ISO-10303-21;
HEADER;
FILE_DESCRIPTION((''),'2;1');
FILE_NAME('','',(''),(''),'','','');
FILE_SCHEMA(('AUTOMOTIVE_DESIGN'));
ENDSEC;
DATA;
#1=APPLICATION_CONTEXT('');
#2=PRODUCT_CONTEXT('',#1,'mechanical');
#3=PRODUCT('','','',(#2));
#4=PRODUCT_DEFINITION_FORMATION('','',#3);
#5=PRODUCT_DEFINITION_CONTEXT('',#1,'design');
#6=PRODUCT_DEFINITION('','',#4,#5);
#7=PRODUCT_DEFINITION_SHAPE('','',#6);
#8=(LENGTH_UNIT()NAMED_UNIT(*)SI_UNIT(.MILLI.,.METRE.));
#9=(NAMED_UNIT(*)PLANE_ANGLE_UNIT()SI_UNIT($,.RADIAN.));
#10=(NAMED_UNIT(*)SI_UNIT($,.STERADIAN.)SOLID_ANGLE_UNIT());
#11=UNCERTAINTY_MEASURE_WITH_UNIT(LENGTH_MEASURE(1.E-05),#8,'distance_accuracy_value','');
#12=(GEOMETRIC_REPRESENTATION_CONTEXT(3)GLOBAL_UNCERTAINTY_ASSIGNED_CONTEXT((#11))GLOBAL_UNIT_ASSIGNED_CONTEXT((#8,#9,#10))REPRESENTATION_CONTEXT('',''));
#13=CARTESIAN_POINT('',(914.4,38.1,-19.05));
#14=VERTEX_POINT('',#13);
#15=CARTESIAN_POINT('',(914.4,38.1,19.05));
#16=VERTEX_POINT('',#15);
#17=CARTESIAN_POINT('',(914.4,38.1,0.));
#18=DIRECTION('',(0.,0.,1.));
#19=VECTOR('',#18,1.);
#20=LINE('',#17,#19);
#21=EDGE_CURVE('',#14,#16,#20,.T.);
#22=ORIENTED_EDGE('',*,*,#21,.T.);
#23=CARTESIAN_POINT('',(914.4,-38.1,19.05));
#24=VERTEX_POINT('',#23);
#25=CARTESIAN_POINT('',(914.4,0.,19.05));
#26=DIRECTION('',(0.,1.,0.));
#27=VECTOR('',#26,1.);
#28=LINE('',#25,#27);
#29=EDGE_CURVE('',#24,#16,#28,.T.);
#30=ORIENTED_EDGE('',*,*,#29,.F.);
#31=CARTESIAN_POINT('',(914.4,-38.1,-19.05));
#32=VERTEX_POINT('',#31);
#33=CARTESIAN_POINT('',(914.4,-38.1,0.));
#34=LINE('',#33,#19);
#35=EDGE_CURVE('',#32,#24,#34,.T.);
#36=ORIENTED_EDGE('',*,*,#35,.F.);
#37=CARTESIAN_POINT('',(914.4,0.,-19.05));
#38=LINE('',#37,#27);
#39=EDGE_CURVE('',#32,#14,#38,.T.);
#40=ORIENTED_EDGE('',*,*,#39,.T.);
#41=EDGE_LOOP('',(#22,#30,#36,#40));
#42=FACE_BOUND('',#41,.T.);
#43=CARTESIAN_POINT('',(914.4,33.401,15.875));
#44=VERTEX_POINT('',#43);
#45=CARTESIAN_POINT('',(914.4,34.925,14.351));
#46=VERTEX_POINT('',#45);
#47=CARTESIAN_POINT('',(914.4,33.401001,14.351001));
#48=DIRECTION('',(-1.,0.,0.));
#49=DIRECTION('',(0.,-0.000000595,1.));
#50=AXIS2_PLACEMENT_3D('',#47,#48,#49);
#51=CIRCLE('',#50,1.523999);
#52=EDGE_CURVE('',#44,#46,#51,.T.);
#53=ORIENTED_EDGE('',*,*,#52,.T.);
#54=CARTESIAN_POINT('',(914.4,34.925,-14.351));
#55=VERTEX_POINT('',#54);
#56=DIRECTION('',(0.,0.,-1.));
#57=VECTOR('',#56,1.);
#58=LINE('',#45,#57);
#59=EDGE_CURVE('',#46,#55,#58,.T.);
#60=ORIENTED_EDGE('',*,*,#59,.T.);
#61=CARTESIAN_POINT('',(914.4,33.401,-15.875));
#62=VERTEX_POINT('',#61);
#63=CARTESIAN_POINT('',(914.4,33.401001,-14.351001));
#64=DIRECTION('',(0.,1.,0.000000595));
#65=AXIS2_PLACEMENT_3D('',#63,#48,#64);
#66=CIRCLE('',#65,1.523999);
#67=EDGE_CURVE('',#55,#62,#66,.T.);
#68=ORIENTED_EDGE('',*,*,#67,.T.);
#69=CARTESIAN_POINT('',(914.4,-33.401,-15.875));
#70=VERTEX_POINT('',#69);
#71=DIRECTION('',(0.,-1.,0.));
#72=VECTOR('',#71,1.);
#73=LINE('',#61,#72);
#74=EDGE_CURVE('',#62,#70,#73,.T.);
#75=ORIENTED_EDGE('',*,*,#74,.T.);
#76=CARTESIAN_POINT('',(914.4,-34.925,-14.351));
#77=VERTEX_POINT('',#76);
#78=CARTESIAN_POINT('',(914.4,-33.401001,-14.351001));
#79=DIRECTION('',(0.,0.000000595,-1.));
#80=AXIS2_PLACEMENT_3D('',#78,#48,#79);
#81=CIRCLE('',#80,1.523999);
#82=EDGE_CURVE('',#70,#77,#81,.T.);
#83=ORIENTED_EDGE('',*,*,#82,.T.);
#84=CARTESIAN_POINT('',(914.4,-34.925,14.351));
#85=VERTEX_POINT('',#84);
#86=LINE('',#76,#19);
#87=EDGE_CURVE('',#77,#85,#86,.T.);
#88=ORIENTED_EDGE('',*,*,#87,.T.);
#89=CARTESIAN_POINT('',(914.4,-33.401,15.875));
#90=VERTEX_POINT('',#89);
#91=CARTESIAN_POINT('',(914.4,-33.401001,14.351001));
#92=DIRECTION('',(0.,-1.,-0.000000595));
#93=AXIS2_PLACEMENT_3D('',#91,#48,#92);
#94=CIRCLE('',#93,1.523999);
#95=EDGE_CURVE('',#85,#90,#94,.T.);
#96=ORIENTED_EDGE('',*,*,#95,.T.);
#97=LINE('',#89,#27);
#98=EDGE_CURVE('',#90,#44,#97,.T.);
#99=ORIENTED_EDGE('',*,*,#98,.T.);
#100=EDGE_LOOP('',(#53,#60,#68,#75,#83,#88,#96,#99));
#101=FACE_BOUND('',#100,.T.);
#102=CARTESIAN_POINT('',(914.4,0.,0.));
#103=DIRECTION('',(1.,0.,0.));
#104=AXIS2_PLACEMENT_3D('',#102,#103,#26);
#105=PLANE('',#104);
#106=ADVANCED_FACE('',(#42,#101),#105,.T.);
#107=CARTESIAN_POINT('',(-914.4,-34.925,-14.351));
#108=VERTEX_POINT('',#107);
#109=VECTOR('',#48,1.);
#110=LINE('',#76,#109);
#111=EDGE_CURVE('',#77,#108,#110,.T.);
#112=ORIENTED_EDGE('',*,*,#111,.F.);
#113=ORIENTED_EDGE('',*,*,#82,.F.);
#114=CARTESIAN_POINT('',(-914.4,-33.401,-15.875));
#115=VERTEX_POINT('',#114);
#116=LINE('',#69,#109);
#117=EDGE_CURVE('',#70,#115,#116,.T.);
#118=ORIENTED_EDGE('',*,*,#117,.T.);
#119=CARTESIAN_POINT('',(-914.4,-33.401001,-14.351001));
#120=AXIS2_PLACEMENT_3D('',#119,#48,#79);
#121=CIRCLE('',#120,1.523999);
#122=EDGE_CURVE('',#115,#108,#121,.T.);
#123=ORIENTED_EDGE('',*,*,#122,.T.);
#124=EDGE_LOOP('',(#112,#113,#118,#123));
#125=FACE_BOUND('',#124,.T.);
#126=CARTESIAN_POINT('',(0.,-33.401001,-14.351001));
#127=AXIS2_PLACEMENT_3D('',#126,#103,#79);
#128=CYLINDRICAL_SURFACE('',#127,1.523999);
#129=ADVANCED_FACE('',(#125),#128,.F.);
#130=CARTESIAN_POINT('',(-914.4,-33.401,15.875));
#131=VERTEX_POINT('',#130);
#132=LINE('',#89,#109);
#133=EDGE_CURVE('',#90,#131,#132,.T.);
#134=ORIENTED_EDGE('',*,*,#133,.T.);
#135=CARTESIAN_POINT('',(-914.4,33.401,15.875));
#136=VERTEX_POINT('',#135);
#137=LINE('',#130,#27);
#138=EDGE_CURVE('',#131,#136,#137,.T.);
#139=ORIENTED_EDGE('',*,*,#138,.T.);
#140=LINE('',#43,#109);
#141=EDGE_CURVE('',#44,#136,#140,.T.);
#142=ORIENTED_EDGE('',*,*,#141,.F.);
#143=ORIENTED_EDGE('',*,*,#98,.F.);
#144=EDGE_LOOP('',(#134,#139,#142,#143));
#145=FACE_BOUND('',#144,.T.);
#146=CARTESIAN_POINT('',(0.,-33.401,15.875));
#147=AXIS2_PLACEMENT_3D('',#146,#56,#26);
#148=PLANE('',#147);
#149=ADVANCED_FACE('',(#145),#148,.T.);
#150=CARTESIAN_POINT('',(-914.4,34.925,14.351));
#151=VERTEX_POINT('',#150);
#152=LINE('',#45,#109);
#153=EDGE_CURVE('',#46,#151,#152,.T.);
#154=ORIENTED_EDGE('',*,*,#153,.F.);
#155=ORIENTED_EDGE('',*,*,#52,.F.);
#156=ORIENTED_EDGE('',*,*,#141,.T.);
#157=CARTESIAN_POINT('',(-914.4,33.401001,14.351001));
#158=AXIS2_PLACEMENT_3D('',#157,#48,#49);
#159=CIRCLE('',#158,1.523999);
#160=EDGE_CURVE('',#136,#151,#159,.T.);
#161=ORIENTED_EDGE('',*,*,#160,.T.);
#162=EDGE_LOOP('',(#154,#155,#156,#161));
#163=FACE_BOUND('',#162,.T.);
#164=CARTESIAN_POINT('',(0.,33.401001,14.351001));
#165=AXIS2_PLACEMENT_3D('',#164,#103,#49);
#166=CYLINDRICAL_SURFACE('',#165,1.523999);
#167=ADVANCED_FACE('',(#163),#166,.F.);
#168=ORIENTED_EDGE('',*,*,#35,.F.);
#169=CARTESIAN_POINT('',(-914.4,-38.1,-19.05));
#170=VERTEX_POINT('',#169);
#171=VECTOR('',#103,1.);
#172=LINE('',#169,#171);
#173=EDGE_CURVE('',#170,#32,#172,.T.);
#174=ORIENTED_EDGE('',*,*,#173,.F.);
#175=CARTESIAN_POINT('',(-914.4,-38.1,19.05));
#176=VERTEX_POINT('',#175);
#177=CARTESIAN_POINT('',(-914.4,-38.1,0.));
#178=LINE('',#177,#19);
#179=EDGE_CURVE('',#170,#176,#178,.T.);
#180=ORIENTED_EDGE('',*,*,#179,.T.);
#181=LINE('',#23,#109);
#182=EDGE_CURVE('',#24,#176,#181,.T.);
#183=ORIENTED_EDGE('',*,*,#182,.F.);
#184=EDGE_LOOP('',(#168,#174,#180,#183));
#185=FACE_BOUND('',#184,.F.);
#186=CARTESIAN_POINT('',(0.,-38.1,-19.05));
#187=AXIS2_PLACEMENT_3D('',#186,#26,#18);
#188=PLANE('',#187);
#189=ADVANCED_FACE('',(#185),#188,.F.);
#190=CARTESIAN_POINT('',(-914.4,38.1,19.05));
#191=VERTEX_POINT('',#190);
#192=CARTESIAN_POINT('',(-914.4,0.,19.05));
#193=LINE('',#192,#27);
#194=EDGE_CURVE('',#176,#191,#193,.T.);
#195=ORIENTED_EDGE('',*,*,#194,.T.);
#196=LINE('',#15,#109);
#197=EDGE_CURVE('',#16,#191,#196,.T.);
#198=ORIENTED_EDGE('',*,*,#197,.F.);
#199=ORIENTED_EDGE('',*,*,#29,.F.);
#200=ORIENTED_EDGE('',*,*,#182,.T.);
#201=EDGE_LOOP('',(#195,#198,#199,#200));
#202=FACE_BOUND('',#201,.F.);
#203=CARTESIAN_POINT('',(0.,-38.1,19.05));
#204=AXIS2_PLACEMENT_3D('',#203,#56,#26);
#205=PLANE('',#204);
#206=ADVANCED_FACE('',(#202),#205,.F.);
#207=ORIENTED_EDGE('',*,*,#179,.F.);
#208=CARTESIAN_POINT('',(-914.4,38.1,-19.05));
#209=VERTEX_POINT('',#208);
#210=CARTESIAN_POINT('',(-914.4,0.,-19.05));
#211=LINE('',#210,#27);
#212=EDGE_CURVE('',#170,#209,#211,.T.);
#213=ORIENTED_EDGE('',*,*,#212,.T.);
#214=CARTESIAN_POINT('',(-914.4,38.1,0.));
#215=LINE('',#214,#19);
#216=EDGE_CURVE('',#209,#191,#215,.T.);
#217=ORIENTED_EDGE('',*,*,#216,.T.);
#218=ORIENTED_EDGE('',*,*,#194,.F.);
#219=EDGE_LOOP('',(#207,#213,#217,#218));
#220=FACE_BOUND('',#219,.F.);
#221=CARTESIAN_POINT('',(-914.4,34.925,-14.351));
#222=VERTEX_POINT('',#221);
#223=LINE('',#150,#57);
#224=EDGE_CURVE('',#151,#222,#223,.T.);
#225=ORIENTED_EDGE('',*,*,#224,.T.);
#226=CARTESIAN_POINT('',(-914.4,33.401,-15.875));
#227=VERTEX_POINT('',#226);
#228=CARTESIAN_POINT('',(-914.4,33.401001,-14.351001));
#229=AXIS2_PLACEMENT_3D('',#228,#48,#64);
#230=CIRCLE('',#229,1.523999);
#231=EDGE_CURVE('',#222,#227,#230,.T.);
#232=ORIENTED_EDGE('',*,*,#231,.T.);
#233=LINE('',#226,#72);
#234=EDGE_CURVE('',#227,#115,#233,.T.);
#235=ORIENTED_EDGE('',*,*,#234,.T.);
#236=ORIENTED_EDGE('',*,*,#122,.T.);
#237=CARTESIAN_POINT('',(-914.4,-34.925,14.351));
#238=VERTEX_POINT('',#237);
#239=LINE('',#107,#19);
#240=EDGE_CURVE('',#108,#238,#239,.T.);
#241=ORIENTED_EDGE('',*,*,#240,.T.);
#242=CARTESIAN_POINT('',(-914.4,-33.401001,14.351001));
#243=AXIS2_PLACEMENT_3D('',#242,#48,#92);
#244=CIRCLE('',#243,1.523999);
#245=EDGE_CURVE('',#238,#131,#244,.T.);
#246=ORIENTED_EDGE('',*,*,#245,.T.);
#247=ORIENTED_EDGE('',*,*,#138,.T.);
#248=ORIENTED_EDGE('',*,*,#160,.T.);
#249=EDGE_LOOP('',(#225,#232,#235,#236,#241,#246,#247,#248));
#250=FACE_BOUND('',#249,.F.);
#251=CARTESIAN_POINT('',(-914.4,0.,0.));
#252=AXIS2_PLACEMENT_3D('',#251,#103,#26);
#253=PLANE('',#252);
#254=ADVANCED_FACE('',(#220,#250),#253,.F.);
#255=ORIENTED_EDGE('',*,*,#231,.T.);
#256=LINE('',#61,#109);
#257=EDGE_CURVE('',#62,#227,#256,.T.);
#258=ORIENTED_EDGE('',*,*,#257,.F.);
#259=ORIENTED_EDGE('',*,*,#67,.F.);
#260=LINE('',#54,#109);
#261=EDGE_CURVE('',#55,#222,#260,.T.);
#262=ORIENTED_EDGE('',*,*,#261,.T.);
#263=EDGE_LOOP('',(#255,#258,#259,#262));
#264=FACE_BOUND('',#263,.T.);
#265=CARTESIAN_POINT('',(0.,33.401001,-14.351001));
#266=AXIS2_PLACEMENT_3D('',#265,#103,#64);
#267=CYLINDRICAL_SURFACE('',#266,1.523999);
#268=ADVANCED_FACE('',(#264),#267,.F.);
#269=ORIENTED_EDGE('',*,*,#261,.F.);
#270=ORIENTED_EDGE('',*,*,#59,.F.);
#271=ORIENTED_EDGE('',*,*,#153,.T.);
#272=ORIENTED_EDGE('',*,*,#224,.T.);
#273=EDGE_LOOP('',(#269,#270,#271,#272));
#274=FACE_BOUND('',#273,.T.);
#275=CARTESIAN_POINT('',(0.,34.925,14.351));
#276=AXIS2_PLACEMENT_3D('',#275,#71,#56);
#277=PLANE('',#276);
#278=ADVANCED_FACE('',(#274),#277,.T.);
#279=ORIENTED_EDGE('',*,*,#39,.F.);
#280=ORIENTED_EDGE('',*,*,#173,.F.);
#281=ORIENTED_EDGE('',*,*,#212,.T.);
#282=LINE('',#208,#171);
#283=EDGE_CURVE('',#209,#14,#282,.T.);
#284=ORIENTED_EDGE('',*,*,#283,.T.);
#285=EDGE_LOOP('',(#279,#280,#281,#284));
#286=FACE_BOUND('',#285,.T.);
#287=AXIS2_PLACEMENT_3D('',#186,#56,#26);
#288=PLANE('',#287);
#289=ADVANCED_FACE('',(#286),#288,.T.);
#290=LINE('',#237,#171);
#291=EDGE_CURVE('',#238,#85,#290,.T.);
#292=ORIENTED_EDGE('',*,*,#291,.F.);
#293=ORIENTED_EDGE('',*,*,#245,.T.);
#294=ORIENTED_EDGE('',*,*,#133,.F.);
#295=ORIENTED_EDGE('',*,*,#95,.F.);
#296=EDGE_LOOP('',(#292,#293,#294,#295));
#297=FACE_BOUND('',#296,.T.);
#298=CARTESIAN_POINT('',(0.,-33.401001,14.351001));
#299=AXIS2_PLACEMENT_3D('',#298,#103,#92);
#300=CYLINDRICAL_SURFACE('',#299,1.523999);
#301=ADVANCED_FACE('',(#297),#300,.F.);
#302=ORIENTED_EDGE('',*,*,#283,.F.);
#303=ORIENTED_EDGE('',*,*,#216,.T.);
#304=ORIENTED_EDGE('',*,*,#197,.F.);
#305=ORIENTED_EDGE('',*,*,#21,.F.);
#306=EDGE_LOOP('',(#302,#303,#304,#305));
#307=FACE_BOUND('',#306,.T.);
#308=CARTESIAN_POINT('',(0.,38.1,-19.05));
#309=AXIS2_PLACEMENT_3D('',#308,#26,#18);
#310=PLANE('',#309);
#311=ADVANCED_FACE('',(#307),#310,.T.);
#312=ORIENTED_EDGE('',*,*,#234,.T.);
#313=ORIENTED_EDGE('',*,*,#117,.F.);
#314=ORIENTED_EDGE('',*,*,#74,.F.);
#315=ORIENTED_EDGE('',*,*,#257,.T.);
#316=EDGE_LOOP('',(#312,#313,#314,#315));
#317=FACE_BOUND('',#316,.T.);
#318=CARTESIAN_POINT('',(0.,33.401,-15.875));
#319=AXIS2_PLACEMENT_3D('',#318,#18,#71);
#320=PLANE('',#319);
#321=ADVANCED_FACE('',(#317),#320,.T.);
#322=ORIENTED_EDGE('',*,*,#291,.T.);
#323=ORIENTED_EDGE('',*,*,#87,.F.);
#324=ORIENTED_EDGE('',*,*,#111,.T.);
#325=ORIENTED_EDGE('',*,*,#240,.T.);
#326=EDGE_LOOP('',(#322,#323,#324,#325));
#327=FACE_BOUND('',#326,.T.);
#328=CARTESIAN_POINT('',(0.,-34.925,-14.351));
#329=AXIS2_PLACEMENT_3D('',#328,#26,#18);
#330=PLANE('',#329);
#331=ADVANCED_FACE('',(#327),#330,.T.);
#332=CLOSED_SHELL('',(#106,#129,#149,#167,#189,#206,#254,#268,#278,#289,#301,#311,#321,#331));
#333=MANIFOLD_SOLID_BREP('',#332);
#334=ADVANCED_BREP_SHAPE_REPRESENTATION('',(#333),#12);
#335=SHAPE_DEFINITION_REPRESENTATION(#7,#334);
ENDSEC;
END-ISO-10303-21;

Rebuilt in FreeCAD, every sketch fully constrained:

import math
import FreeCAD as App
import Part
import Sketcher
Q = App.Units.Quantity


def add_polygon(sketch, points):
    """Adds a closed chain of lines whose ends are joined by coincident constraints."""
    first, n = sketch.GeometryCount, len(points)
    for a, b in zip(points, points[1:] + points[:1]):
        sketch.addGeometry(Part.LineSegment(App.Vector(*a, 0), App.Vector(*b, 0)), False)
    for i in range(n):
        sketch.addConstraint(Sketcher.Constraint("Coincident", first + i, 2, first + (i + 1) % n, 1))

doc = App.newDocument("Part")
body = doc.addObject("PartDesign::Body", "Body")

sketch1 = doc.addObject("Sketcher::SketchObject", "Sketch")
body.addObject(sketch1)
sketch1.AttachmentSupport = (doc.YZ_Plane, [""])
sketch1.MapMode = "FlatFace"
add_polygon(sketch1, [(-38.1, 19.05), (-38.1, -19.05), (38.1, -19.05), (38.1, 19.05)])
sketch1.addGeometry(Part.LineSegment(App.Vector(-34.925, -14.351, 0), App.Vector(-34.925, 14.351, 0)), False)
sketch1.addGeometry(Part.ArcOfCircle(Part.Circle(App.Vector(-33.401001, 14.351001, 0), App.Vector(0, 0, 1), 1.523999), math.radians(89.999966), math.radians(180.000034)), False)
sketch1.addGeometry(Part.LineSegment(App.Vector(-33.401, 15.875, 0), App.Vector(33.401, 15.875, 0)), False)
sketch1.addGeometry(Part.ArcOfCircle(Part.Circle(App.Vector(33.401001, 14.351001, 0), App.Vector(0, 0, 1), 1.523999), math.radians(-0.000034), math.radians(90.000034)), False)
sketch1.addGeometry(Part.LineSegment(App.Vector(34.925, 14.351, 0), App.Vector(34.925, -14.351, 0)), False)
sketch1.addGeometry(Part.ArcOfCircle(Part.Circle(App.Vector(33.401001, -14.351001, 0), App.Vector(0, 0, 1), 1.523999), math.radians(-90.000034), math.radians(0.000034)), False)
sketch1.addGeometry(Part.LineSegment(App.Vector(33.401, -15.875, 0), App.Vector(-33.401, -15.875, 0)), False)
sketch1.addGeometry(Part.ArcOfCircle(Part.Circle(App.Vector(-33.401001, -14.351001, 0), App.Vector(0, 0, 1), 1.523999), math.radians(179.999966), math.radians(270.000034)), False)
sketch1.addConstraint([
    Sketcher.Constraint("Tangent", 4, 2, 5, 2),
    Sketcher.Constraint("Tangent", 5, 1, 6, 1),
    Sketcher.Constraint("Tangent", 6, 2, 7, 2),
    Sketcher.Constraint("Tangent", 7, 1, 8, 1),
    Sketcher.Constraint("Tangent", 8, 2, 9, 2),
    Sketcher.Constraint("Tangent", 9, 1, 10, 1),
    Sketcher.Constraint("Tangent", 10, 2, 11, 2),
    Sketcher.Constraint("Tangent", 11, 1, 4, 1),
    Sketcher.Constraint("Vertical", 0),
    Sketcher.Constraint("Horizontal", 1),
    Sketcher.Constraint("Vertical", 2),
    Sketcher.Constraint("Horizontal", 3),
    Sketcher.Constraint("Vertical", 4),
    Sketcher.Constraint("Horizontal", 6),
    Sketcher.Constraint("Vertical", 8),
    Sketcher.Constraint("Horizontal", 10),
    Sketcher.Constraint("Equal", 5, 7),
    Sketcher.Constraint("Equal", 7, 9),
    Sketcher.Constraint("Equal", 9, 11),
    Sketcher.Constraint("Symmetric", 5, 3, 9, 3, -1, 1),
    Sketcher.Constraint("Symmetric", 0, 2, 2, 2, -1, 1),
    Sketcher.Constraint("DistanceX", 1, 1, 1, 2, Q("3 in")),
    Sketcher.Constraint("Radius", 5, Q("0.06 in")),
    Sketcher.Constraint("DistanceY", 0, 2, 0, 1, Q("1.5 in")),
    Sketcher.Constraint("DistanceX", 6, 1, 6, 2, Q("2.63 in")),
    Sketcher.Constraint("DistanceY", 4, 1, 4, 2, Q("1.13 in")),
])
pad1 = doc.addObject("PartDesign::Pad", "Pad")
body.addObject(pad1)
pad1.Profile = sketch1
pad1.Length = Q("72 in")
pad1.Midplane = True

doc.recompute()
